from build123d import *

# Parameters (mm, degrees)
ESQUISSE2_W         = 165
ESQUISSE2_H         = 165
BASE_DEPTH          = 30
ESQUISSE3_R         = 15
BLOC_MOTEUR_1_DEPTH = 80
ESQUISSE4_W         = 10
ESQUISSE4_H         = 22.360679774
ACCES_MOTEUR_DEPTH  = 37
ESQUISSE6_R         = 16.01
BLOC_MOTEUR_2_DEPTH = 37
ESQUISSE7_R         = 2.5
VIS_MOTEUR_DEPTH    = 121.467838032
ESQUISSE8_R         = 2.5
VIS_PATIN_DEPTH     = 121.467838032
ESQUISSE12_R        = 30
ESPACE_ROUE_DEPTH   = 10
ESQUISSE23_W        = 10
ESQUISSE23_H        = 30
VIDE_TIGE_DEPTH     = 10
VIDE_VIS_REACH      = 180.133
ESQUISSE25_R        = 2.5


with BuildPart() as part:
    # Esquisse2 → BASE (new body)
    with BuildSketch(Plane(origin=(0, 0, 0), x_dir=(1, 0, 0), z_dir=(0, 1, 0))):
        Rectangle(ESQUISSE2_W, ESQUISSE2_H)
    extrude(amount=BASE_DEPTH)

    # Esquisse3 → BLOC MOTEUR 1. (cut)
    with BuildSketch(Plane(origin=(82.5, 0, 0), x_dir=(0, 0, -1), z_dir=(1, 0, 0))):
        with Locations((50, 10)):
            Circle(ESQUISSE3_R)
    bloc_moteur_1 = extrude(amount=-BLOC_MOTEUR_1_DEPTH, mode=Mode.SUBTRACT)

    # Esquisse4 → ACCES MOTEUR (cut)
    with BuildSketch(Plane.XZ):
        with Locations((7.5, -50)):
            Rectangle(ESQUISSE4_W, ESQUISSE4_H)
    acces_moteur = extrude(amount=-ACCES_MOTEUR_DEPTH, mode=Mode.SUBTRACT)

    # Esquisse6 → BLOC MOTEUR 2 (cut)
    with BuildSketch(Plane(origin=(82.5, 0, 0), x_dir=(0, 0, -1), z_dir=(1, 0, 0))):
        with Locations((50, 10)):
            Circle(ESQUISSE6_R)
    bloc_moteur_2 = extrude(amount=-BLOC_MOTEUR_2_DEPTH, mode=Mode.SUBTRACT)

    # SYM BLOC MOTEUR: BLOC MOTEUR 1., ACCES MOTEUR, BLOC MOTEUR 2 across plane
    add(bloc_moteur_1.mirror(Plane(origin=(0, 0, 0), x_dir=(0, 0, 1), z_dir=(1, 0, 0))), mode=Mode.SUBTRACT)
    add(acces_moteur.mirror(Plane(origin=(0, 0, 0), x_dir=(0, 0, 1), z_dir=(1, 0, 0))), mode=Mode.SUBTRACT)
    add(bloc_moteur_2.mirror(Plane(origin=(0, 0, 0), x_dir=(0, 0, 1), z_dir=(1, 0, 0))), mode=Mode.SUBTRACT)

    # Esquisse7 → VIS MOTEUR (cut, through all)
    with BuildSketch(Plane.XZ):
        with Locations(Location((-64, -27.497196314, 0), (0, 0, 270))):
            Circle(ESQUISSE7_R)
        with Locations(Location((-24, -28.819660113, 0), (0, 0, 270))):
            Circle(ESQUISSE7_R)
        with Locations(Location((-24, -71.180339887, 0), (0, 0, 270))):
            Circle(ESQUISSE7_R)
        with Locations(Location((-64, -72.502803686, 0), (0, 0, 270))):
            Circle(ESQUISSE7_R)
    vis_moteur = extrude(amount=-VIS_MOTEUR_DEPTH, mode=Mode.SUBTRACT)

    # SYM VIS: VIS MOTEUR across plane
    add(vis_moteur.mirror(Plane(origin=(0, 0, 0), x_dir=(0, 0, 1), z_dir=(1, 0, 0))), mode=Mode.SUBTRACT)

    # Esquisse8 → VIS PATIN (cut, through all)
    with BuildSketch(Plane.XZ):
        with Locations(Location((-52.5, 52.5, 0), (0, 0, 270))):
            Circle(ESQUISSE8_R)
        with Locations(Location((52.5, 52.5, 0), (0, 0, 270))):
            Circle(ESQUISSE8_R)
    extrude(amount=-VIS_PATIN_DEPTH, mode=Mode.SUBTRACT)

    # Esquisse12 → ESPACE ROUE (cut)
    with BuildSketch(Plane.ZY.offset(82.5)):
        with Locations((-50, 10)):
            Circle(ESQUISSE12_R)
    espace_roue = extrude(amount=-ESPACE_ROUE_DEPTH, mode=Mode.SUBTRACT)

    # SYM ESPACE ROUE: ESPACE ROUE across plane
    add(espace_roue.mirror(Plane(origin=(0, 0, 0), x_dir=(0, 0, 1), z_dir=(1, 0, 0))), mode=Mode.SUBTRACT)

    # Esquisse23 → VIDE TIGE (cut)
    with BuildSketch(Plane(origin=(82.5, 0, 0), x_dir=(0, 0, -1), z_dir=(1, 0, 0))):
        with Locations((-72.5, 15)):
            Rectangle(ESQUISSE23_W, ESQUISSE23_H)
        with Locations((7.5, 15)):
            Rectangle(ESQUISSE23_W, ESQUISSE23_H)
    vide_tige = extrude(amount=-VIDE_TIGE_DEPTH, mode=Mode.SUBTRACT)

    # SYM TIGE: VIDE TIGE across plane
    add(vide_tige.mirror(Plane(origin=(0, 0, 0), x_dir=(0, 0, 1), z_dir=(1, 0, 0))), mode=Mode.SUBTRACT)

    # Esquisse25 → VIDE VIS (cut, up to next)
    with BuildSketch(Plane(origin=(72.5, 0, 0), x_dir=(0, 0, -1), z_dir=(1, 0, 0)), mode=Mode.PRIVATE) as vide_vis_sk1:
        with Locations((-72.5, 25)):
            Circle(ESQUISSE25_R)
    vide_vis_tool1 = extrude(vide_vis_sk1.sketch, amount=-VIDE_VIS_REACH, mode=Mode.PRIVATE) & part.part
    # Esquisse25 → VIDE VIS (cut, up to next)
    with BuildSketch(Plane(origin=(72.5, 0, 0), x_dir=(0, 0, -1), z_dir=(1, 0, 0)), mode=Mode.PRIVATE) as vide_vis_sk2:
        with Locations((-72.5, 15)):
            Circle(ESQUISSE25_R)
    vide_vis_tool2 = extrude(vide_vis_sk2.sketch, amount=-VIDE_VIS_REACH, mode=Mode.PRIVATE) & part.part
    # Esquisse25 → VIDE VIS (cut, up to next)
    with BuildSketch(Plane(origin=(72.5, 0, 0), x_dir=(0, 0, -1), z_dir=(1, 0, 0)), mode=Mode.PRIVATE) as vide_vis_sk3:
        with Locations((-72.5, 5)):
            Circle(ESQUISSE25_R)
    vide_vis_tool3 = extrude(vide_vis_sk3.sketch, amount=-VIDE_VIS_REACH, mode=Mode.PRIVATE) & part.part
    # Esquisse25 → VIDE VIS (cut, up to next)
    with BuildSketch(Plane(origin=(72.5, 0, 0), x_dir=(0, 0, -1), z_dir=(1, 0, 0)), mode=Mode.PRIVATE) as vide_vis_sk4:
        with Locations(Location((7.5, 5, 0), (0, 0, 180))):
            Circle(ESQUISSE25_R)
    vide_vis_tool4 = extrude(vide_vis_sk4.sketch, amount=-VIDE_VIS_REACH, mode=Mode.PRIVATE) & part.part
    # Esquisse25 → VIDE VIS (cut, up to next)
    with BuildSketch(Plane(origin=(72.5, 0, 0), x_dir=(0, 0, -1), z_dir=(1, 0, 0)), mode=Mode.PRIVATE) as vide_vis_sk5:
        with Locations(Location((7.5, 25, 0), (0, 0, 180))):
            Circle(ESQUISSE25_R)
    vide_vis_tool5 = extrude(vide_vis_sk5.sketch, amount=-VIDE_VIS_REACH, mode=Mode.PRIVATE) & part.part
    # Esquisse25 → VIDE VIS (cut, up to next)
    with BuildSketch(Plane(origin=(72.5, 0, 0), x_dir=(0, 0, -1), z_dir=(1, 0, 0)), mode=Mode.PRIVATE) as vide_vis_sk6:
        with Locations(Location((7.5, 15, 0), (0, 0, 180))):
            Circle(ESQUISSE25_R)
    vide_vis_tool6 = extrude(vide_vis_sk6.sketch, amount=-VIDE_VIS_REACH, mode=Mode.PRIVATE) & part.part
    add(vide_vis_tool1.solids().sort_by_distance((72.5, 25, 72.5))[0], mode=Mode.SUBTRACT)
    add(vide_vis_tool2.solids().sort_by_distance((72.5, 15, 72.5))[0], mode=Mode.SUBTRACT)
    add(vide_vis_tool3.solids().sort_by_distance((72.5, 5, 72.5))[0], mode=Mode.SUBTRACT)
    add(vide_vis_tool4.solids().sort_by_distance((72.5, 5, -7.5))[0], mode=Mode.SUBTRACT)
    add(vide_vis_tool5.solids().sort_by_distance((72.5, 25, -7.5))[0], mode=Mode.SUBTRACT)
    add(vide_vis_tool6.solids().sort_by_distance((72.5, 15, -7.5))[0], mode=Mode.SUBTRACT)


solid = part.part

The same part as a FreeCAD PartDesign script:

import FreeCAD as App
import Part
import Sketcher

V = App.Vector


def add_polygon(sketch, points):
    """Adds a closed chain of lines whose ends are joined by coincident constraints."""
    first, n = sketch.GeometryCount, len(points)
    for a, b in zip(points, points[1:] + points[:1]):
        sketch.addGeometry(Part.LineSegment(App.Vector(*a, 0), App.Vector(*b, 0)), False)
    for i in range(n):
        sketch.addConstraint(Sketcher.Constraint("Coincident", first + i, 2, first + (i + 1) % n, 1))

doc = App.newDocument("Part")
params = doc.addObject("Spreadsheet::Sheet", "Params")
for row, (alias, value) in enumerate([
    ("sketch1_width", "165 mm"),
    ("pad1_length", "30 mm"),
    ("sketch2_diameter", "30 mm"),
    ("pocket1_length", "80 mm"),
    ("sketch3_width", "10 mm"),
    ("pocket2_length", "37 mm"),
    ("sketch4_diameter", "32.02 mm"),
    ("pocket3_length", "37 mm"),
    ("sketch5_diameter", "5 mm"),
    ("sketch6_diameter", "5 mm"),
    ("sketch7_diameter", "60 mm"),
    ("pocket6_length", "10 mm"),
    ("sketch8_width", "30 mm"),
    ("sketch8_height", "10 mm"),
    ("pocket7_length", "10 mm"),
    ("sketch9_diameter", "5 mm"),
    ("sketch10_diameter", "5 mm"),
    ("sketch11_diameter", "5 mm"),
    ("sketch12_diameter", "5 mm"),
    ("sketch13_diameter", "5 mm"),
    ("sketch14_diameter", "5 mm"),
], start=1):
    params.set(f"A{row}", alias)
    params.set(f"B{row}", "=" + value)
    params.setAlias(f"B{row}", alias)

body = doc.addObject("PartDesign::Body", "Body")

# Sketch on XZ plane
sketch1 = body.newObject("Sketcher::SketchObject", "Sketch")
sketch1.AttachmentSupport = (doc.getObject("XZ_Plane"), [""])
sketch1.MapMode = "FlatFace"
add_polygon(sketch1, [(-82, -82), (-82, 82), (82, 82), (82, -82)])  # lines 0-3
sketch1.addConstraint(Sketcher.Constraint("Vertical", 0))
sketch1.addConstraint(Sketcher.Constraint("Horizontal", 1))
sketch1.addConstraint(Sketcher.Constraint("Vertical", 2))
sketch1.addConstraint(Sketcher.Constraint("Horizontal", 3))
sketch1.addConstraint(Sketcher.Constraint("Symmetric", 0, 2, 2, 2, -1, 1))
sketch1.addConstraint(Sketcher.Constraint("Equal", 3, 0))
sketch1.addConstraint(Sketcher.Constraint("DistanceX", 1, 1, 1, 2, 165.0))
sketch1.setExpression("Constraints[10]", "Params.sketch1_width")
pad1 = body.newObject("PartDesign::Pad", "Pad")
pad1.Profile = sketch1
pad1.setExpression("Length", "Params.pad1_length")
pad1.Reversed = True

# Sketch on YZ plane
sketch2 = body.newObject("Sketcher::SketchObject", "Sketch001")
sketch2.AttachmentSupport = (doc.getObject("YZ_Plane"), [""])
sketch2.MapMode = "FlatFace"
sketch2.AttachmentOffset = App.Placement(V(0, 0, 82.5), App.Rotation())
sketch2.addGeometry(Part.Circle(V(10, -50, 0), V(0, 0, 1), 15), False)
sketch2.addConstraint(Sketcher.Constraint("Diameter", 0, 30.0))
sketch2.addConstraint(Sketcher.Constraint("DistanceX", -1, 1, 0, 3, 10.0))
sketch2.addConstraint(Sketcher.Constraint("DistanceY", 0, 3, -1, 1, 50.0))
sketch2.setExpression("Constraints[0]", "Params.sketch2_diameter")
pocket1 = body.newObject("PartDesign::Pocket", "Pocket")
pocket1.Profile = sketch2
pocket1.setExpression("Length", "Params.pocket1_length")

# Sketch on XZ plane
sketch3 = body.newObject("Sketcher::SketchObject", "Sketch002")
sketch3.AttachmentSupport = (doc.getObject("XZ_Plane"), [""])
sketch3.MapMode = "FlatFace"
add_polygon(sketch3, [(2, -39), (2, -61), (12, -61), (12, -39)])  # lines 0-3
sketch3.addConstraint(Sketcher.Constraint("Vertical", 0))
sketch3.addConstraint(Sketcher.Constraint("Horizontal", 1))
sketch3.addConstraint(Sketcher.Constraint("Vertical", 2))
sketch3.addConstraint(Sketcher.Constraint("Horizontal", 3))
sketch3.addConstraint(Sketcher.Constraint("DistanceX", 1, 1, 1, 2, 10.0))
sketch3.addConstraint(Sketcher.Constraint("DistanceX", -1, 1, 0, 2, 2.5))
sketch3.addConstraint(Sketcher.Constraint("DistanceY", 0, 2, 0, 1, 22.36068))
sketch3.addConstraint(Sketcher.Constraint("DistanceY", 0, 2, -1, 1, 61.18034))
sketch3.setExpression("Constraints[8]", "Params.sketch3_width")
pocket2 = body.newObject("PartDesign::Pocket", "Pocket001")
pocket2.Profile = sketch3
pocket2.setExpression("Length", "Params.pocket2_length")

# Sketch on YZ plane
sketch4 = body.newObject("Sketcher::SketchObject", "Sketch003")
sketch4.AttachmentSupport = (doc.getObject("YZ_Plane"), [""])
sketch4.MapMode = "FlatFace"
sketch4.AttachmentOffset = App.Placement(V(0, 0, 82.5), App.Rotation())
sketch4.addGeometry(Part.Circle(V(10, -50, 0), V(0, 0, 1), 16), False)
sketch4.addConstraint(Sketcher.Constraint("Diameter", 0, 32.02))
sketch4.addConstraint(Sketcher.Constraint("DistanceX", -1, 1, 0, 3, 10.0))
sketch4.addConstraint(Sketcher.Constraint("DistanceY", 0, 3, -1, 1, 50.0))
sketch4.setExpression("Constraints[0]", "Params.sketch4_diameter")
pocket3 = body.newObject("PartDesign::Pocket", "Pocket002")
pocket3.Profile = sketch4
pocket3.setExpression("Length", "Params.pocket3_length")
doc.recompute()

mirrored = body.newObject("PartDesign::Mirrored", "Mirrored")
mirrored.Originals = [pocket1, pocket2, pocket3]
mirrored.MirrorPlane = (doc.getObject("YZ_Plane"), [""])
body.Tip = mirrored

# Sketch on XZ plane
sketch5 = body.newObject("Sketcher::SketchObject", "Sketch004")
sketch5.AttachmentSupport = (doc.getObject("XZ_Plane"), [""])
sketch5.MapMode = "FlatFace"
sketch5.addGeometry(Part.Circle(V(-64, -27.5, 0), V(0, 0, 1), 2.5), False)
sketch5.addGeometry(Part.Circle(V(-24, -28.8, 0), V(0, 0, 1), 2.5), False)
sketch5.addGeometry(Part.Circle(V(-24, -71.2, 0), V(0, 0, 1), 2.5), False)
sketch5.addGeometry(Part.Circle(V(-64, -72.5, 0), V(0, 0, 1), 2.5), False)
sketch5.addConstraint(Sketcher.Constraint("Equal", 0, 1))
sketch5.addConstraint(Sketcher.Constraint("Equal", 1, 2))
sketch5.addConstraint(Sketcher.Constraint("Equal", 2, 3))
sketch5.addConstraint(Sketcher.Constraint("Vertical", 1, 3, 2, 3))
sketch5.addConstraint(Sketcher.Constraint("Vertical", 0, 3, 3, 3))
sketch5.addConstraint(Sketcher.Constraint("Diameter", 0, 5.0))
sketch5.addConstraint(Sketcher.Constraint("DistanceX", 0, 3, -1, 1, 64.0))
sketch5.addConstraint(Sketcher.Constraint("DistanceX", 1, 3, -1, 1, 24.0))
sketch5.addConstraint(Sketcher.Constraint("DistanceY", 1, 3, -1, 1, 28.81966))
sketch5.addConstraint(Sketcher.Constraint("DistanceY", 2, 3, -1, 1, 71.18034))
sketch5.addConstraint(Sketcher.Constraint("DistanceY", 0, 3, -1, 1, 27.497196))
sketch5.addConstraint(Sketcher.Constraint("DistanceY", 3, 3, -1, 1, 72.502804))
sketch5.setExpression("Constraints[5]", "Params.sketch5_diameter")
pocket4 = body.newObject("PartDesign::Pocket", "Pocket003")
pocket4.Profile = sketch5
pocket4.Type = "ThroughAll"
doc.recompute()

mirrored2 = body.newObject("PartDesign::Mirrored", "Mirrored001")
mirrored2.Originals = [pocket4]
mirrored2.MirrorPlane = (doc.getObject("YZ_Plane"), [""])
body.Tip = mirrored2

# Sketch on XZ plane
sketch6 = body.newObject("Sketcher::SketchObject", "Sketch005")
sketch6.AttachmentSupport = (doc.getObject("XZ_Plane"), [""])
sketch6.MapMode = "FlatFace"
sketch6.addGeometry(Part.Circle(V(-52.5, 52.5, 0), V(0, 0, 1), 2.5), False)
sketch6.addGeometry(Part.Circle(V(52.5, 52.5, 0), V(0, 0, 1), 2.5), False)
sketch6.addConstraint(Sketcher.Constraint("Equal", 0, 1))
sketch6.addConstraint(Sketcher.Constraint("Symmetric", 0, 3, 1, 3, -2))
sketch6.addConstraint(Sketcher.Constraint("Diameter", 0, 5.0))
sketch6.addConstraint(Sketcher.Constraint("DistanceX", 0, 3, 1, 3, 105.0))
sketch6.addConstraint(Sketcher.Constraint("DistanceY", -1, 1, 0, 3, 52.5))
sketch6.setExpression("Constraints[2]", "Params.sketch6_diameter")
pocket5 = body.newObject("PartDesign::Pocket", "Pocket004")
pocket5.Profile = sketch6
pocket5.Type = "ThroughAll"

# Sketch on YZ plane
sketch7 = body.newObject("Sketcher::SketchObject", "Sketch006")
sketch7.AttachmentSupport = (doc.getObject("YZ_Plane"), [""])
sketch7.MapMode = "FlatFace"
sketch7.AttachmentOffset = App.Placement(V(0, 0, -82.5), App.Rotation())
sketch7.addGeometry(Part.Circle(V(10, -50, 0), V(0, 0, 1), 30), False)
sketch7.addConstraint(Sketcher.Constraint("Diameter", 0, 60.0))
sketch7.addConstraint(Sketcher.Constraint("DistanceX", -1, 1, 0, 3, 10.0))
sketch7.addConstraint(Sketcher.Constraint("DistanceY", 0, 3, -1, 1, 50.0))
sketch7.setExpression("Constraints[0]", "Params.sketch7_diameter")
pocket6 = body.newObject("PartDesign::Pocket", "Pocket005")
pocket6.Profile = sketch7
pocket6.setExpression("Length", "Params.pocket6_length")
pocket6.Reversed = True
doc.recompute()

mirrored3 = body.newObject("PartDesign::Mirrored", "Mirrored002")
mirrored3.Originals = [pocket6]
mirrored3.MirrorPlane = (doc.getObject("YZ_Plane"), [""])
body.Tip = mirrored3

# Sketch on YZ plane
sketch8 = body.newObject("Sketcher::SketchObject", "Sketch007")
sketch8.AttachmentSupport = (doc.getObject("YZ_Plane"), [""])
sketch8.MapMode = "FlatFace"
sketch8.AttachmentOffset = App.Placement(V(0, 0, 82.5), App.Rotation())
add_polygon(sketch8, [(30, 78), (0, 78), (0, 68), (30, 68)])  # lines 0-3
add_polygon(sketch8, [(30, -2), (0, -2), (0, -12), (30, -12)])  # lines 4-7
sketch8.addConstraint(Sketcher.Constraint("Horizontal", 0))
sketch8.addConstraint(Sketcher.Constraint("Vertical", 1))
sketch8.addConstraint(Sketcher.Constraint("Horizontal", 2))
sketch8.addConstraint(Sketcher.Constraint("Vertical", 3))
sketch8.addConstraint(Sketcher.Constraint("Horizontal", 4))
sketch8.addConstraint(Sketcher.Constraint("Vertical", 5))
sketch8.addConstraint(Sketcher.Constraint("Horizontal", 6))
sketch8.addConstraint(Sketcher.Constraint("Vertical", 7))
sketch8.addConstraint(Sketcher.Constraint("PointOnObject", 0, 2, -2))
sketch8.addConstraint(Sketcher.Constraint("PointOnObject", 4, 2, -2))
sketch8.addConstraint(Sketcher.Constraint("Vertical", 3, 2, 6, 2))
sketch8.addConstraint(Sketcher.Constraint("Equal", 3, 5))
sketch8.addConstraint(Sketcher.Constraint("DistanceX", 0, 2, 0, 1, 30.0))
sketch8.addConstraint(Sketcher.Constraint("DistanceY", 1, 2, 1, 1, 10.0))
sketch8.addConstraint(Sketcher.Constraint("DistanceY", 4, 2, 1, 2, 70.0))
sketch8.addConstraint(Sketcher.Constraint("DistanceY", -1, 1, 0, 2, 77.5))
sketch8.setExpression("Constraints[20]", "Params.sketch8_width")
sketch8.setExpression("Constraints[21]", "Params.sketch8_height")
pocket7 = body.newObject("PartDesign::Pocket", "Pocket006")
pocket7.Profile = sketch8
pocket7.setExpression("Length", "Params.pocket7_length")
doc.recompute()

mirrored4 = body.newObject("PartDesign::Mirrored", "Mirrored003")
mirrored4.Originals = [pocket7]
mirrored4.MirrorPlane = (doc.getObject("YZ_Plane"), [""])
body.Tip = mirrored4

# Sketch on YZ plane
sketch9 = body.newObject("Sketcher::SketchObject", "Sketch008")
sketch9.AttachmentSupport = (doc.getObject("YZ_Plane"), [""])
sketch9.MapMode = "FlatFace"
sketch9.AttachmentOffset = App.Placement(V(0, 0, 72.5), App.Rotation())
sketch9.addGeometry(Part.Circle(V(25, 72.5, 0), V(0, 0, 1), 2.5), False)
sketch9.addConstraint(Sketcher.Constraint("Diameter", 0, 5.0))
sketch9.addConstraint(Sketcher.Constraint("DistanceX", -1, 1, 0, 3, 25.0))
sketch9.addConstraint(Sketcher.Constraint("DistanceY", -1, 1, 0, 3, 72.5))
sketch9.setExpression("Constraints[0]", "Params.sketch9_diameter")
pocket8 = body.newObject("PartDesign::Pocket", "Pocket007")
pocket8.Profile = sketch9
pocket8.Type = "UpToFirst"

# Sketch on YZ plane
sketch10 = body.newObject("Sketcher::SketchObject", "Sketch009")
sketch10.AttachmentSupport = (doc.getObject("YZ_Plane"), [""])
sketch10.MapMode = "FlatFace"
sketch10.AttachmentOffset = App.Placement(V(0, 0, 72.5), App.Rotation())
sketch10.addGeometry(Part.Circle(V(15, 72.5, 0), V(0, 0, 1), 2.5), False)
sketch10.addConstraint(Sketcher.Constraint("Diameter", 0, 5.0))
sketch10.addConstraint(Sketcher.Constraint("DistanceX", -1, 1, 0, 3, 15.0))
sketch10.addConstraint(Sketcher.Constraint("DistanceY", -1, 1, 0, 3, 72.5))
sketch10.setExpression("Constraints[0]", "Params.sketch10_diameter")
pocket9 = body.newObject("PartDesign::Pocket", "Pocket008")
pocket9.Profile = sketch10
pocket9.Type = "UpToFirst"

# Sketch on YZ plane
sketch11 = body.newObject("Sketcher::SketchObject", "Sketch010")
sketch11.AttachmentSupport = (doc.getObject("YZ_Plane"), [""])
sketch11.MapMode = "FlatFace"
sketch11.AttachmentOffset = App.Placement(V(0, 0, 72.5), App.Rotation())
sketch11.addGeometry(Part.Circle(V(5, 72.5, 0), V(0, 0, 1), 2.5), False)
sketch11.addConstraint(Sketcher.Constraint("Diameter", 0, 5.0))
sketch11.addConstraint(Sketcher.Constraint("DistanceX", -1, 1, 0, 3, 5.0))
sketch11.addConstraint(Sketcher.Constraint("DistanceY", -1, 1, 0, 3, 72.5))
sketch11.setExpression("Constraints[0]", "Params.sketch11_diameter")
pocket10 = body.newObject("PartDesign::Pocket", "Pocket009")
pocket10.Profile = sketch11
pocket10.Type = "UpToFirst"

# Sketch on YZ plane
sketch12 = body.newObject("Sketcher::SketchObject", "Sketch011")
sketch12.AttachmentSupport = (doc.getObject("YZ_Plane"), [""])
sketch12.MapMode = "FlatFace"
sketch12.AttachmentOffset = App.Placement(V(0, 0, 72.5), App.Rotation())
sketch12.addGeometry(Part.Circle(V(5, -7.5, 0), V(0, 0, 1), 2.5), False)
sketch12.addConstraint(Sketcher.Constraint("Diameter", 0, 5.0))
sketch12.addConstraint(Sketcher.Constraint("DistanceX", -1, 1, 0, 3, 5.0))
sketch12.addConstraint(Sketcher.Constraint("DistanceY", 0, 3, -1, 1, 7.5))
sketch12.setExpression("Constraints[0]", "Params.sketch12_diameter")
pocket11 = body.newObject("PartDesign::Pocket", "Pocket010")
pocket11.Profile = sketch12
pocket11.Type = "UpToFirst"

# Sketch on YZ plane
sketch13 = body.newObject("Sketcher::SketchObject", "Sketch012")
sketch13.AttachmentSupport = (doc.getObject("YZ_Plane"), [""])
sketch13.MapMode = "FlatFace"
sketch13.AttachmentOffset = App.Placement(V(0, 0, 72.5), App.Rotation())
sketch13.addGeometry(Part.Circle(V(25, -7.5, 0), V(0, 0, 1), 2.5), False)
sketch13.addConstraint(Sketcher.Constraint("Diameter", 0, 5.0))
sketch13.addConstraint(Sketcher.Constraint("DistanceX", -1, 1, 0, 3, 25.0))
sketch13.addConstraint(Sketcher.Constraint("DistanceY", 0, 3, -1, 1, 7.5))
sketch13.setExpression("Constraints[0]", "Params.sketch13_diameter")
pocket12 = body.newObject("PartDesign::Pocket", "Pocket011")
pocket12.Profile = sketch13
pocket12.Type = "UpToFirst"

# Sketch on YZ plane
sketch14 = body.newObject("Sketcher::SketchObject", "Sketch013")
sketch14.AttachmentSupport = (doc.getObject("YZ_Plane"), [""])
sketch14.MapMode = "FlatFace"
sketch14.AttachmentOffset = App.Placement(V(0, 0, 72.5), App.Rotation())
sketch14.addGeometry(Part.Circle(V(15, -7.5, 0), V(0, 0, 1), 2.5), False)
sketch14.addConstraint(Sketcher.Constraint("Diameter", 0, 5.0))
sketch14.addConstraint(Sketcher.Constraint("DistanceX", -1, 1, 0, 3, 15.0))
sketch14.addConstraint(Sketcher.Constraint("DistanceY", 0, 3, -1, 1, 7.5))
sketch14.setExpression("Constraints[0]", "Params.sketch14_diameter")
pocket13 = body.newObject("PartDesign::Pocket", "Pocket012")
pocket13.Profile = sketch14
pocket13.Type = "UpToFirst"

doc.recompute()
